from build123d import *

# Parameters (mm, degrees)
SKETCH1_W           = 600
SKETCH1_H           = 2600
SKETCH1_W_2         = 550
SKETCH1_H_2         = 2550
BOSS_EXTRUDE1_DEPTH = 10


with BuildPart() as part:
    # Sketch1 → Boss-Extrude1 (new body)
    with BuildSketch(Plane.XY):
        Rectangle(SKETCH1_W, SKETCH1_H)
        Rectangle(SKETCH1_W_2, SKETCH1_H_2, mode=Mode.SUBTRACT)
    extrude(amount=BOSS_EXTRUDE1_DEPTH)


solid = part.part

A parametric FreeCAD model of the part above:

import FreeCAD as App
import Part
import Sketcher

V = App.Vector
Q = App.Units.Quantity


def add_polygon(sketch, points):
    """Adds a closed chain of lines whose ends are joined by coincident constraints."""
    first, n = sketch.GeometryCount, len(points)
    for a, b in zip(points, points[1:] + points[:1]):
        sketch.addGeometry(Part.LineSegment(App.Vector(*a, 0), App.Vector(*b, 0)), False)
    for i in range(n):
        sketch.addConstraint(Sketcher.Constraint("Coincident", first + i, 2, first + (i + 1) % n, 1))

doc = App.newDocument("Part")
body = doc.addObject("PartDesign::Body", "Body")

# Sketch on XY plane
sketch1 = body.newObject("Sketcher::SketchObject", "Sketch")
sketch1.AttachmentSupport = (doc.getObject("XY_Plane"), [""])
sketch1.MapMode = "FlatFace"
add_polygon(sketch1, [(-300, 1300), (-300, -1300), (300, -1300), (300, 1300)])  # lines 0-3
add_polygon(sketch1, [(275, -1275), (-275, -1275), (-275, 1275), (275, 1275)])  # lines 4-7
sketch1.addConstraint([
    Sketcher.Constraint("Vertical", 0),
    Sketcher.Constraint("Horizontal", 1),
    Sketcher.Constraint("Vertical", 2),
    Sketcher.Constraint("Horizontal", 3),
    Sketcher.Constraint("Horizontal", 4),
    Sketcher.Constraint("Vertical", 5),
    Sketcher.Constraint("Horizontal", 6),
    Sketcher.Constraint("Vertical", 7),
    Sketcher.Constraint("Symmetric", 0, 2, 2, 2, -1, 1),
    Sketcher.Constraint("Symmetric", 4, 2, 6, 2, -1, 1),
    Sketcher.Constraint("DistanceX", 1, 1, 1, 2, Q("600 mm")),
    Sketcher.Constraint("DistanceX", 4, 2, 4, 1, Q("550 mm")),
    Sketcher.Constraint("DistanceY", 0, 2, 0, 1, Q("2600 mm")),
    Sketcher.Constraint("DistanceY", 5, 1, 5, 2, Q("2550 mm")),
])
pad1 = body.newObject("PartDesign::Pad", "Pad")
pad1.Profile = sketch1
pad1.Length = 10

doc.recompute()
